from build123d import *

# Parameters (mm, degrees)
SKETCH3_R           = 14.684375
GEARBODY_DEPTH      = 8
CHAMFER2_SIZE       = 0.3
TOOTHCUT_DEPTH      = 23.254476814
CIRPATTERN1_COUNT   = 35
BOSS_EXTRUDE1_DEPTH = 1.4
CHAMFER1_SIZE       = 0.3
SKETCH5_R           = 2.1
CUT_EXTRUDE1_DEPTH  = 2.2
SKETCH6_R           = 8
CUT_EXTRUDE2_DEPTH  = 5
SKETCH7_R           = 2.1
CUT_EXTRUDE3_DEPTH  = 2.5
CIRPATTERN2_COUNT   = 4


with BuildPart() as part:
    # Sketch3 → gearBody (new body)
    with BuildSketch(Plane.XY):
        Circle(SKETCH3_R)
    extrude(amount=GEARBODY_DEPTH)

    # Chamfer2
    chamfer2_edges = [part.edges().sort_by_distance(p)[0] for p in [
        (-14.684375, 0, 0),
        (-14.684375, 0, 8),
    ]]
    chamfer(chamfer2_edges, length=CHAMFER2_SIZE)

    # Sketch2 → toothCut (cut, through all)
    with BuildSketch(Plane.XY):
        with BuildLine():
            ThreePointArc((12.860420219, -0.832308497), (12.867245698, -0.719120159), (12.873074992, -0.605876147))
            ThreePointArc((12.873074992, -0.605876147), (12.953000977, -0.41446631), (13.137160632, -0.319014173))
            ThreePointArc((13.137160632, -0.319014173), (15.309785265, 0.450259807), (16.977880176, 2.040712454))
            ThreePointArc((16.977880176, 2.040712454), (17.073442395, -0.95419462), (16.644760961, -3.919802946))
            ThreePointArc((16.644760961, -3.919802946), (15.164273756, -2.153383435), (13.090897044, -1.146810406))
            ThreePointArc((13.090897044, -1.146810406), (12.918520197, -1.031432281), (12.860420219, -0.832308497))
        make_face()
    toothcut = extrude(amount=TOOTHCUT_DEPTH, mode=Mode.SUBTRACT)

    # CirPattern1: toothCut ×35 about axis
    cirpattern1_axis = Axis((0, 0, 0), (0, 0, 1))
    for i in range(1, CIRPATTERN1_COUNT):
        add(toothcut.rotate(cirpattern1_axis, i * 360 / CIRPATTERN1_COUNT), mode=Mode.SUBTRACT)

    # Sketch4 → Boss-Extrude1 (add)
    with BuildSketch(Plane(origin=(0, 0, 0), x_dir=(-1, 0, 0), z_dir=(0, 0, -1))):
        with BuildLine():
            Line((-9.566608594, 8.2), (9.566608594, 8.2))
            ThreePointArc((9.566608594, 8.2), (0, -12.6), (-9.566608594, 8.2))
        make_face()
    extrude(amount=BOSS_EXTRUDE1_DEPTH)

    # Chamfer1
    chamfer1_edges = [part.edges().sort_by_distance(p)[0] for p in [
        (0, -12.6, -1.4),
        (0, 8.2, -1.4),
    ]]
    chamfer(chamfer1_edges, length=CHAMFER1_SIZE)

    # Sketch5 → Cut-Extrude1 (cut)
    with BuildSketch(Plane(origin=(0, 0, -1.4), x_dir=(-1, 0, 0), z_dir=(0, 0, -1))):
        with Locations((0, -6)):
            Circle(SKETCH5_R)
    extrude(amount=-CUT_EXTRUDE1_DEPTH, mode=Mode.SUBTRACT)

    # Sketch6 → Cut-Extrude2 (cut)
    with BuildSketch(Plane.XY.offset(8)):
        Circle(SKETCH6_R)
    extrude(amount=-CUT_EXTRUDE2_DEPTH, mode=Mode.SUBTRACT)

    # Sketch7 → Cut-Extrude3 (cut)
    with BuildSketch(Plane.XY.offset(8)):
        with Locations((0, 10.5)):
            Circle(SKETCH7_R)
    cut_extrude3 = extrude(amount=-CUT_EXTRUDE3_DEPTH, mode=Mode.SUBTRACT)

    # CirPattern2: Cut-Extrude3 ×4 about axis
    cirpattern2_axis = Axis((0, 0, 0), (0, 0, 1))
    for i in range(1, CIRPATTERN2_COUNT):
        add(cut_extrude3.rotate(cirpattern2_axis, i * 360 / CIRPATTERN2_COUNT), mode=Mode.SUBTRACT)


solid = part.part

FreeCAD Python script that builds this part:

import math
import FreeCAD as App
import Part
import Sketcher

V = App.Vector
Q = App.Units.Quantity


def edges_at(feature, points):
    """Names of the edges that pass closest to the given points."""
    edges = feature.Shape.Edges
    near = lambda p: min(range(len(edges)), key=lambda i: edges[i].distToShape(Part.Vertex(*p))[0])
    return sorted({f"Edge{near(p) + 1}" for p in points})

doc = App.newDocument("Part")
body = doc.addObject("PartDesign::Body", "Body")

sketch1 = body.newObject("Sketcher::SketchObject", "Sketch")
sketch1.AttachmentSupport = (doc.getObject("XY_Plane"), [""])
sketch1.MapMode = "FlatFace"
sketch1.addGeometry(Part.Circle(V(0, 0, 0), V(0, 0, 1), 15), False)
sketch1.addConstraint([
    Sketcher.Constraint("Coincident", 0, 3, -1, 1),
    Sketcher.Constraint("Diameter", 0, Q("29.36875 mm")),
])
pad1 = body.newObject("PartDesign::Pad", "Pad")
pad1.Profile = sketch1
pad1.Length = 8
doc.recompute()

chamfer = body.newObject("PartDesign::Chamfer", "Chamfer")
chamfer.Base = (pad1, edges_at(pad1, [(-14.684, 0, 0), (-14.684, 0, 8)]))
chamfer.Size = 0.3

sketch2 = body.newObject("Sketcher::SketchObject", "Sketch001")
sketch2.AttachmentSupport = (doc.getObject("XY_Plane"), [""])
sketch2.MapMode = "FlatFace"
sketch2.addGeometry([
    Part.ArcOfCircle(Part.Circle(V(0, 0, 0), V(0, 0, 1), 12.89), math.radians(-3.7), math.radians(-2.69)),
    Part.ArcOfCircle(Part.Circle(V(13.16, -0.85, 0), V(0, 0, 1), 0.3), math.radians(176), math.radians(256)),
    Part.ArcOfCircle(Part.Circle(V(11.77, -6.5, 0), V(0, 0, 1), 5.51), math.radians(28), math.radians(76)),
    Part.ArcOfCircle(Part.Circle(V(0, 0, 0), V(0, 0, 1), 17.1), math.radians(-13), math.radians(7)),
    Part.ArcOfCircle(Part.Circle(V(12.42, 5.15, 0), V(0, 0, 1), 5.51), math.radians(-83), math.radians(-34)),
    Part.ArcOfCircle(Part.Circle(V(13.18, -0.62, 0), V(0, 0, 1), 0.3), math.radians(97), math.radians(177)),
], False)
sketch2.addConstraint([
    Sketcher.Constraint("Tangent", 0, 1, 1, 1),
    Sketcher.Constraint("Tangent", 1, 2, 2, 2),
    Sketcher.Constraint("Coincident", 2, 1, 3, 1),
    Sketcher.Constraint("Coincident", 3, 2, 4, 2),
    Sketcher.Constraint("Tangent", 4, 1, 5, 1),
    Sketcher.Constraint("Tangent", 5, 2, 0, 2),
    Sketcher.Constraint("Coincident", 0, 3, -1, 1),
    Sketcher.Constraint("Coincident", 3, 3, -1, 1),
    Sketcher.Constraint("Equal", 2, 4),
    Sketcher.Constraint("Equal", 1, 5),
    Sketcher.Constraint("Radius", 0, Q("12.887319 mm")),
    Sketcher.Constraint("Radius", 1, Q("0.303689 mm")),
    Sketcher.Constraint("Radius", 2, Q("5.511677 mm")),
    Sketcher.Constraint("Radius", 3, Q("17.100085 mm")),
    Sketcher.Constraint("DistanceX", 2, 3, 1, 3, Q("1.389802 mm")),
    Sketcher.Constraint("DistanceX", 5, 2, 1, 3, Q("0.2904 mm")),
    Sketcher.Constraint("DistanceY", 1, 3, -1, 1, Q("0.851922 mm")),
    Sketcher.Constraint("DistanceX", -1, 1, 3, 2, Q("16.97788 mm")),
])
pocket1 = body.newObject("PartDesign::Pocket", "Pocket")
pocket1.Profile = sketch2
pocket1.Type = "ThroughAll"
pocket1.Reversed = True
doc.recompute()

polarpattern = body.newObject("PartDesign::PolarPattern", "PolarPattern")
polarpattern.Originals = [pocket1]
polarpattern.Axis = (doc.getObject("Z_Axis"), [""])
polarpattern.Angle = 360
polarpattern.Occurrences = 35
body.Tip = polarpattern

sketch3 = body.newObject("Sketcher::SketchObject", "Sketch002")
sketch3.AttachmentSupport = (doc.getObject("XY_Plane"), [""])
sketch3.MapMode = "FlatFace"
sketch3.addGeometry([
    Part.LineSegment(V(-10, 8, 0), V(10, 8, 0)),
    Part.ArcOfCircle(Part.Circle(V(0, 0, 0), V(0, 0, 1), 13), math.radians(139), math.radians(401)),
], False)
sketch3.addConstraint([
    Sketcher.Constraint("Coincident", 0, 1, 1, 1),
    Sketcher.Constraint("Coincident", 1, 2, 0, 2),
    Sketcher.Constraint("Horizontal", 0),
    Sketcher.Constraint("Coincident", 1, 3, -1, 1),
    Sketcher.Constraint("Radius", 1, Q("12.6 mm")),
    Sketcher.Constraint("DistanceY", -1, 1, 0, 1, Q("8.2 mm")),
])
pad2 = body.newObject("PartDesign::Pad", "Pad001")
pad2.Profile = sketch3
pad2.Length = 1.4
pad2.Reversed = True
doc.recompute()

chamfer2 = body.newObject("PartDesign::Chamfer", "Chamfer001")
chamfer2.Base = (pad2, edges_at(pad2, [(0, -12.6, -1.4), (0, 8.2, -1.4)]))
chamfer2.Size = 0.3

sketch4 = body.newObject("Sketcher::SketchObject", "Sketch003")
sketch4.AttachmentSupport = (doc.getObject("XY_Plane"), [""])
sketch4.MapMode = "FlatFace"
sketch4.AttachmentOffset = App.Placement(V(0, 0, -1.4), App.Rotation())
sketch4.addGeometry(Part.Circle(V(0, -6, 0), V(0, 0, 1), 2.1), False)
sketch4.addConstraint([
    Sketcher.Constraint("PointOnObject", 0, 3, -2),
    Sketcher.Constraint("Diameter", 0, Q("4.2 mm")),
    Sketcher.Constraint("DistanceY", 0, 3, -1, 1, Q("6 mm")),
])
pocket2 = body.newObject("PartDesign::Pocket", "Pocket001")
pocket2.Profile = sketch4
pocket2.Length = 2.2
pocket2.Reversed = True

sketch5 = body.newObject("Sketcher::SketchObject", "Sketch004")
sketch5.AttachmentSupport = (doc.getObject("XY_Plane"), [""])
sketch5.MapMode = "FlatFace"
sketch5.AttachmentOffset = App.Placement(V(0, 0, 8), App.Rotation())
sketch5.addGeometry(Part.Circle(V(0, 0, 0), V(0, 0, 1), 8), False)
sketch5.addConstraint([
    Sketcher.Constraint("Coincident", 0, 3, -1, 1),
    Sketcher.Constraint("Diameter", 0, Q("16 mm")),
])
pocket3 = body.newObject("PartDesign::Pocket", "Pocket002")
pocket3.Profile = sketch5
pocket3.Length = 5

sketch6 = body.newObject("Sketcher::SketchObject", "Sketch005")
sketch6.AttachmentSupport = (doc.getObject("XY_Plane"), [""])
sketch6.MapMode = "FlatFace"
sketch6.AttachmentOffset = App.Placement(V(0, 0, 8), App.Rotation())
sketch6.addGeometry(Part.Circle(V(0, 10.5, 0), V(0, 0, 1), 2.1), False)
sketch6.addConstraint([
    Sketcher.Constraint("PointOnObject", 0, 3, -2),
    Sketcher.Constraint("Diameter", 0, Q("4.2 mm")),
    Sketcher.Constraint("DistanceY", -1, 1, 0, 3, Q("10.5 mm")),
])
pocket4 = body.newObject("PartDesign::Pocket", "Pocket003")
pocket4.Profile = sketch6
pocket4.Length = 2.5
doc.recompute()

polarpattern2 = body.newObject("PartDesign::PolarPattern", "PolarPattern001")
polarpattern2.Originals = [pocket4]
polarpattern2.Axis = (doc.getObject("Z_Axis"), [""])
polarpattern2.Angle = 360
polarpattern2.Occurrences = 4
body.Tip = polarpattern2

doc.recompute()
